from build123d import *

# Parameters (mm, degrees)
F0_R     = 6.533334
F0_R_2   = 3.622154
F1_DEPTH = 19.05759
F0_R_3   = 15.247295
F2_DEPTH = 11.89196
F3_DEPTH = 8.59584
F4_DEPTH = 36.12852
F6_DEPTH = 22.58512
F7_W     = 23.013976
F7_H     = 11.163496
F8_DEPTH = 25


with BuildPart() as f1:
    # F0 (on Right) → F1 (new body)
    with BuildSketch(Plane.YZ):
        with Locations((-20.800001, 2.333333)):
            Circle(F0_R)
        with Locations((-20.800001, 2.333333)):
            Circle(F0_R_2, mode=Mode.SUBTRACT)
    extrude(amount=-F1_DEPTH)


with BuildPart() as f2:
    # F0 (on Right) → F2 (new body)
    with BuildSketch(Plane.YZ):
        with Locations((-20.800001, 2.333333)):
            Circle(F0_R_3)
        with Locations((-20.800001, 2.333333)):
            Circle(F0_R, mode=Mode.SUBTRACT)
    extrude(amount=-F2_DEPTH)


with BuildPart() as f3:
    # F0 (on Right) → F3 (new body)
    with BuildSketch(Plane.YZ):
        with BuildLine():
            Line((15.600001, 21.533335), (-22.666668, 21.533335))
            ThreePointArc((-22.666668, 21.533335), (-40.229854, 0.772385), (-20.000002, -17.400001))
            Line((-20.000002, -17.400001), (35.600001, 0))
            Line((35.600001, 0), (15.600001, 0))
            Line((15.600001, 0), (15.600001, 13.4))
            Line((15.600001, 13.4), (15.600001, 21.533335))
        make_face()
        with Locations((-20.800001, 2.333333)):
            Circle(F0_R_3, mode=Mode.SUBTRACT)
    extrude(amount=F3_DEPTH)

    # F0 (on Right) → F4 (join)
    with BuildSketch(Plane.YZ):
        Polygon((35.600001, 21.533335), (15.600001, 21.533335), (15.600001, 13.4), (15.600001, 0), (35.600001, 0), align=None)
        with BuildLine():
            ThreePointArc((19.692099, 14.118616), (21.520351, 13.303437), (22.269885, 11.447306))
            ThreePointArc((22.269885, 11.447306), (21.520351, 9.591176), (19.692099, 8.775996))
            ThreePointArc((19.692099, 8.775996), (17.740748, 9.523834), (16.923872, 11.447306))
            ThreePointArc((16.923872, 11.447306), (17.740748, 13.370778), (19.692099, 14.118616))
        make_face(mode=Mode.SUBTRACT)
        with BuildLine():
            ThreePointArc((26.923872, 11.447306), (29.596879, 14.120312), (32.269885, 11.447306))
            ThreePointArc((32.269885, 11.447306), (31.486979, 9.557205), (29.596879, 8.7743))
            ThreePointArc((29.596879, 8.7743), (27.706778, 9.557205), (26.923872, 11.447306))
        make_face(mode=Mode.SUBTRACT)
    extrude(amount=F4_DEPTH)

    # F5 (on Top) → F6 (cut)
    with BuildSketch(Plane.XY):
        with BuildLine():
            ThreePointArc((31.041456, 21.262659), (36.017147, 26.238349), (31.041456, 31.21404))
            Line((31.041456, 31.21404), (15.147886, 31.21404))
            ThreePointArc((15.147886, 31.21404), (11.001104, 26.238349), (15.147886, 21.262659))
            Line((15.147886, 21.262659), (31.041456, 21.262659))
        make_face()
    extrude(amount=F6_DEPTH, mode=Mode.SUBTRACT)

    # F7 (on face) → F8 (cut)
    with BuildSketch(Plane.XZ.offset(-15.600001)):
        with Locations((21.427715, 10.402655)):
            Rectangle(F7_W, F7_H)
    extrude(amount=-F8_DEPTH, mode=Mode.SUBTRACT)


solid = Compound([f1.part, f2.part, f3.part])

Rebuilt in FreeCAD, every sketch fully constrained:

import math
import FreeCAD as App
import Part
import Sketcher
Q = App.Units.Quantity

doc = App.newDocument("Part")
params = doc.addObject("Spreadsheet::Sheet", "Params")
for row, (alias, value) in enumerate([
    ("pad1_length", "19.05759 mm"),
    ("pad2_length", "11.89196 mm"),
    ("sketch3_width", "20 mm"),
    ("pad3_length", "8.59584 mm"),
    ("sketch4_width", "20 mm"),
    ("pad4_length", "36.12852 mm"),
    ("pocket1_length", "22.58512 mm"),
    ("pocket2_length", "25 mm"),
], start=1):
    params.set(f"A{row}", alias)
    params.set(f"B{row}", "=" + value)
    params.setAlias(f"B{row}", alias)

body = doc.addObject("PartDesign::Body", "Body")

# Sketch on YZ plane
sketch1 = doc.addObject("Sketcher::SketchObject", "Sketch")
body.addObject(sketch1)
sketch1.AttachmentSupport = (doc.YZ_Plane, [""])
sketch1.MapMode = "FlatFace"
sketch1.addGeometry(Part.Circle(App.Vector(-20.800001, 2.333333, 0), App.Vector(0, 0, 1), 6.533334), False)
sketch1.addGeometry(Part.Circle(App.Vector(-20.800001, 2.333333, 0), App.Vector(0, 0, 1), 3.622154), False)
sketch1.addConstraint(Sketcher.Constraint("Coincident", 1, 3, 0, 3))
sketch1.addConstraint(Sketcher.Constraint("DistanceX", 0, 3, -1, 1, Q("20.800001 mm")))
sketch1.addConstraint(Sketcher.Constraint("Diameter", 1, Q("7.244308 mm")))
sketch1.addConstraint(Sketcher.Constraint("Diameter", 0, Q("13.066668 mm")))
sketch1.addConstraint(Sketcher.Constraint("DistanceY", -1, 1, 0, 3, Q("2.333333 mm")))
pad1 = doc.addObject("PartDesign::Pad", "Pad")
body.addObject(pad1)
pad1.Profile = sketch1
pad1.setExpression("Length", "Params.pad1_length")
pad1.Reversed = True
body2 = doc.addObject("PartDesign::Body", "Body001")

# Sketch on YZ plane
sketch2 = doc.addObject("Sketcher::SketchObject", "Sketch001")
body2.addObject(sketch2)
sketch2.AttachmentSupport = (doc.getObject("YZ_Plane001"), [""])
sketch2.MapMode = "FlatFace"
sketch2.addGeometry(Part.Circle(App.Vector(-20.800001, 2.333333, 0), App.Vector(0, 0, 1), 15.247295), False)
sketch2.addGeometry(Part.Circle(App.Vector(-20.800001, 2.333333, 0), App.Vector(0, 0, 1), 6.533334), False)
sketch2.addConstraint(Sketcher.Constraint("Coincident", 1, 3, 0, 3))
sketch2.addConstraint(Sketcher.Constraint("DistanceX", 0, 3, -1, 1, Q("20.800001 mm")))
sketch2.addConstraint(Sketcher.Constraint("Diameter", 0, Q("30.49459 mm")))
sketch2.addConstraint(Sketcher.Constraint("Diameter", 1, Q("13.066668 mm")))
sketch2.addConstraint(Sketcher.Constraint("DistanceY", -1, 1, 0, 3, Q("2.333333 mm")))
pad2 = doc.addObject("PartDesign::Pad", "Pad001")
body2.addObject(pad2)
pad2.Profile = sketch2
pad2.setExpression("Length", "Params.pad2_length")
pad2.Reversed = True
body3 = doc.addObject("PartDesign::Body", "Body002")

# Sketch on YZ plane
sketch3 = doc.addObject("Sketcher::SketchObject", "Sketch002")
body3.addObject(sketch3)
sketch3.AttachmentSupport = (doc.getObject("YZ_Plane002"), [""])
sketch3.MapMode = "FlatFace"
sketch3.addGeometry(Part.LineSegment(App.Vector(15.600001, 21.533335, 0), App.Vector(-22.666668, 21.533335, 0)), False)
sketch3.addGeometry(Part.ArcOfCircle(Part.Circle(App.Vector(-20.754585, 2.106307, 0), App.Vector(0, 0, 1), 19.520898), math.radians(95.621168), math.radians(272.215327)), False)
sketch3.addGeometry(Part.LineSegment(App.Vector(-20.000002, -17.400001, 0), App.Vector(35.600001, 0, 0)), False)
sketch3.addGeometry(Part.LineSegment(App.Vector(35.600001, 0, 0), App.Vector(15.600001, 0, 0)), False)
sketch3.addGeometry(Part.LineSegment(App.Vector(15.600001, 0, 0), App.Vector(15.600001, 21.533335, 0)), False)
sketch3.addGeometry(Part.Circle(App.Vector(-20.800001, 2.333333, 0), App.Vector(0, 0, 1), 15.247295), False)
sketch3.addConstraint(Sketcher.Constraint("Coincident", 0, 2, 1, 1))
sketch3.addConstraint(Sketcher.Constraint("Coincident", 1, 2, 2, 1))
sketch3.addConstraint(Sketcher.Constraint("Coincident", 2, 2, 3, 1))
sketch3.addConstraint(Sketcher.Constraint("Coincident", 3, 2, 4, 1))
sketch3.addConstraint(Sketcher.Constraint("Coincident", 4, 2, 0, 1))
sketch3.addConstraint(Sketcher.Constraint("Horizontal", 0))
sketch3.addConstraint(Sketcher.Constraint("Horizontal", 3))
sketch3.addConstraint(Sketcher.Constraint("Vertical", 4))
sketch3.addConstraint(Sketcher.Constraint("PointOnObject", 2, 2, -1))
sketch3.addConstraint(Sketcher.Constraint("DistanceX", 3, 2, 3, 1, Q("20 mm")))
sketch3.addConstraint(Sketcher.Constraint("DistanceX", 5, 3, -1, 1, Q("20.800001 mm")))
sketch3.addConstraint(Sketcher.Constraint("DistanceY", 1, 2, -1, 1, Q("17.400001 mm")))
sketch3.addConstraint(Sketcher.Constraint("DistanceX", -1, 1, 2, 2, Q("35.600001 mm")))
sketch3.addConstraint(Sketcher.Constraint("Radius", 1, Q("19.520898 mm")))
sketch3.addConstraint(Sketcher.Constraint("DistanceX", 5, 3, 1, 2, Q("0.799999 mm")))
sketch3.addConstraint(Sketcher.Constraint("Diameter", 5, Q("30.49459 mm")))
sketch3.addConstraint(Sketcher.Constraint("DistanceX", 0, 2, 0, 1, Q("38.266669 mm")))
sketch3.addConstraint(Sketcher.Constraint("DistanceY", 4, 1, 4, 2, Q("21.533335 mm")))
sketch3.addConstraint(Sketcher.Constraint("DistanceY", -1, 1, 5, 3, Q("2.333333 mm")))
sketch3.setExpression("Constraints[9]", "Params.sketch3_width")
pad3 = doc.addObject("PartDesign::Pad", "Pad002")
body3.addObject(pad3)
pad3.Profile = sketch3
pad3.setExpression("Length", "Params.pad3_length")

# Sketch on YZ plane
sketch4 = doc.addObject("Sketcher::SketchObject", "Sketch003")
body3.addObject(sketch4)
sketch4.AttachmentSupport = (doc.getObject("YZ_Plane002"), [""])
sketch4.MapMode = "FlatFace"
sketch4.addGeometry(Part.LineSegment(App.Vector(35.600001, 21.533335, 0), App.Vector(15.600001, 21.533335, 0)), False)
sketch4.addGeometry(Part.LineSegment(App.Vector(15.600001, 21.533335, 0), App.Vector(15.600001, 0, 0)), False)
sketch4.addGeometry(Part.LineSegment(App.Vector(15.600001, 0, 0), App.Vector(35.600001, 0, 0)), False)
sketch4.addGeometry(Part.LineSegment(App.Vector(35.600001, 0, 0), App.Vector(35.600001, 21.533335, 0)), False)
sketch4.addGeometry(Part.ArcOfCircle(Part.Circle(App.Vector(19.596878, 11.447306, 0), App.Vector(0, 0, 1), 2.673006), math.radians(87.958511), math.radians(180.000011)), False)
sketch4.addGeometry(Part.ArcOfCircle(Part.Circle(App.Vector(19.596881, 11.447308, 0), App.Vector(0, 0, 1), 2.673004), math.radians(-0.000049), math.radians(87.958568)), False)
sketch4.addGeometry(Part.ArcOfCircle(Part.Circle(App.Vector(19.596879, 11.447305, 0), App.Vector(0, 0, 1), 2.673006), math.radians(-87.958531), math.radians(0.000012)), False)
sketch4.addGeometry(Part.ArcOfCircle(Part.Circle(App.Vector(19.596878, 11.447306, 0), App.Vector(0, 0, 1), 2.673006), math.radians(179.999989), math.radians(272.041489)), False)
sketch4.addGeometry(Part.ArcOfCircle(Part.Circle(App.Vector(29.596879, 11.447307, 0), App.Vector(0, 0, 1), 2.673007), math.radians(-179.999988), math.radians(-89.999991)), False)
sketch4.addGeometry(Part.ArcOfCircle(Part.Circle(App.Vector(29.596878, 11.447306, 0), App.Vector(0, 0, 1), 2.673007), math.radians(0.000011), math.radians(179.999989)), False)
sketch4.addGeometry(Part.ArcOfCircle(Part.Circle(App.Vector(29.596878, 11.447307, 0), App.Vector(0, 0, 1), 2.673007), math.radians(-89.999988), math.radians(-0.000012)), False)
sketch4.addConstraint(Sketcher.Constraint("Coincident", 0, 2, 1, 1))
sketch4.addConstraint(Sketcher.Constraint("Coincident", 1, 2, 2, 1))
sketch4.addConstraint(Sketcher.Constraint("Coincident", 2, 2, 3, 1))
sketch4.addConstraint(Sketcher.Constraint("Coincident", 3, 2, 0, 1))
sketch4.addConstraint(Sketcher.Constraint("Tangent", 4, 1, 5, 2))
sketch4.addConstraint(Sketcher.Constraint("Tangent", 5, 1, 6, 2))
sketch4.addConstraint(Sketcher.Constraint("Tangent", 6, 1, 7, 2))
sketch4.addConstraint(Sketcher.Constraint("Tangent", 7, 1, 4, 2))
sketch4.addConstraint(Sketcher.Constraint("Tangent", 8, 1, 9, 2))
sketch4.addConstraint(Sketcher.Constraint("Tangent", 9, 1, 10, 2))
sketch4.addConstraint(Sketcher.Constraint("Tangent", 10, 1, 8, 2))
sketch4.addConstraint(Sketcher.Constraint("Horizontal", 0))
sketch4.addConstraint(Sketcher.Constraint("Vertical", 1))
sketch4.addConstraint(Sketcher.Constraint("Horizontal", 2))
sketch4.addConstraint(Sketcher.Constraint("Vertical", 3))
sketch4.addConstraint(Sketcher.Constraint("Equal", 4, 5))
sketch4.addConstraint(Sketcher.Constraint("Equal", 7, 8))
sketch4.addConstraint(Sketcher.Constraint("PointOnObject", 1, 2, -1))
sketch4.addConstraint(Sketcher.Constraint("Horizontal", 7, 3, 8, 3))
sketch4.addConstraint(Sketcher.Constraint("Horizontal", 10, 3, 5, 1))
sketch4.addConstraint(Sketcher.Constraint("Horizontal", 5, 1, 7, 1))
sketch4.addConstraint(Sketcher.Constraint("Horizontal", 7, 1, 8, 1))
sketch4.addConstraint(Sketcher.Constraint("Horizontal", 8, 1, 9, 1))
sketch4.addConstraint(Sketcher.Constraint("Vertical", 4, 1, 6, 1))
sketch4.addConstraint(Sketcher.Constraint("Vertical", 9, 3, 10, 1))
sketch4.addConstraint(Sketcher.Constraint("DistanceX", 0, 2, 0, 1, Q("20 mm")))
sketch4.addConstraint(Sketcher.Constraint("DistanceX", 6, 3, 8, 3, Q("10 mm")))
sketch4.addConstraint(Sketcher.Constraint("DistanceX", -1, 1, 0, 2, Q("15.600001 mm")))
sketch4.addConstraint(Sketcher.Constraint("Radius", 4, Q("2.673006 mm")))
sketch4.addConstraint(Sketcher.Constraint("DistanceX", -1, 1, 4, 1, Q("19.692099 mm")))
sketch4.addConstraint(Sketcher.Constraint("DistanceY", -1, 1, 10, 1, Q("8.7743 mm")))
sketch4.addConstraint(Sketcher.Constraint("DistanceY", 1, 2, 1, 1, Q("21.533335 mm")))
sketch4.addConstraint(Sketcher.Constraint("DistanceX", -1, 1, 4, 3, Q("19.596878 mm")))
sketch4.setExpression("Constraints[25]", "Params.sketch4_width")
pad4 = doc.addObject("PartDesign::Pad", "Pad003")
body3.addObject(pad4)
pad4.Profile = sketch4
pad4.setExpression("Length", "Params.pad4_length")

# Sketch on XY plane
sketch5 = doc.addObject("Sketcher::SketchObject", "Sketch004")
body3.addObject(sketch5)
sketch5.AttachmentSupport = (doc.getObject("XY_Plane002"), [""])
sketch5.MapMode = "FlatFace"
sketch5.addGeometry(Part.ArcOfCircle(Part.Circle(App.Vector(31.041456, 26.23835, 0), App.Vector(0, 0, 1), 4.97569), math.radians(-90.000006), math.radians(90.000006)), False)
sketch5.addGeometry(Part.LineSegment(App.Vector(31.041456, 31.21404, 0), App.Vector(15.147886, 31.21404, 0)), False)
sketch5.addGeometry(Part.ArcOfCircle(Part.Circle(App.Vector(16.059641, 26.23835, 0), App.Vector(0, 0, 1), 5.058537), math.radians(100.383785), math.radians(259.616215)), False)
sketch5.addGeometry(Part.LineSegment(App.Vector(15.147886, 21.262659, 0), App.Vector(31.041456, 21.262659, 0)), False)
sketch5.addConstraint(Sketcher.Constraint("Tangent", 0, 2, 1, 1))
sketch5.addConstraint(Sketcher.Constraint("Coincident", 1, 2, 2, 1))
sketch5.addConstraint(Sketcher.Constraint("Coincident", 2, 2, 3, 1))
sketch5.addConstraint(Sketcher.Constraint("Tangent", 3, 2, 0, 1))
sketch5.addConstraint(Sketcher.Constraint("Horizontal", 1))
sketch5.addConstraint(Sketcher.Constraint("Horizontal", 3))
sketch5.addConstraint(Sketcher.Constraint("Horizontal", 0, 3, 2, 3))
sketch5.addConstraint(Sketcher.Constraint("Radius", 0, Q("4.97569 mm")))
sketch5.addConstraint(Sketcher.Constraint("Radius", 2, Q("5.058537 mm")))
sketch5.addConstraint(Sketcher.Constraint("DistanceX", 1, 2, 1, 1, Q("15.89357 mm")))
sketch5.addConstraint(Sketcher.Constraint("DistanceY", -1, 1, 0, 3, Q("26.23835 mm")))
sketch5.addConstraint(Sketcher.Constraint("DistanceX", -1, 1, 2, 3, Q("16.059641 mm")))
pocket1 = doc.addObject("PartDesign::Pocket", "Pocket")
body3.addObject(pocket1)
pocket1.Profile = sketch5
pocket1.setExpression("Length", "Params.pocket1_length")
pocket1.Reversed = True

# Sketch on XZ plane
sketch6 = doc.addObject("Sketcher::SketchObject", "Sketch005")
body3.addObject(sketch6)
sketch6.AttachmentSupport = (doc.getObject("XZ_Plane002"), [""])
sketch6.MapMode = "FlatFace"
sketch6.AttachmentOffset = App.Placement(App.Vector(0, 0, -15.600001), App.Rotation())
sketch6.addGeometry(Part.LineSegment(App.Vector(9.920727, 15.984403, 0), App.Vector(9.920727, 4.820907, 0)), False)
sketch6.addGeometry(Part.LineSegment(App.Vector(9.920727, 4.820907, 0), App.Vector(32.934703, 4.820907, 0)), False)
sketch6.addGeometry(Part.LineSegment(App.Vector(32.934703, 4.820907, 0), App.Vector(32.934703, 15.984403, 0)), False)
sketch6.addGeometry(Part.LineSegment(App.Vector(32.934703, 15.984403, 0), App.Vector(9.920727, 15.984403, 0)), False)
sketch6.addConstraint(Sketcher.Constraint("Coincident", 0, 2, 1, 1))
sketch6.addConstraint(Sketcher.Constraint("Coincident", 1, 2, 2, 1))
sketch6.addConstraint(Sketcher.Constraint("Coincident", 2, 2, 3, 1))
sketch6.addConstraint(Sketcher.Constraint("Coincident", 3, 2, 0, 1))
sketch6.addConstraint(Sketcher.Constraint("Vertical", 0))
sketch6.addConstraint(Sketcher.Constraint("Horizontal", 1))
sketch6.addConstraint(Sketcher.Constraint("Vertical", 2))
sketch6.addConstraint(Sketcher.Constraint("Horizontal", 3))
sketch6.addConstraint(Sketcher.Constraint("DistanceX", 1, 1, 1, 2, Q("23.013976 mm")))
sketch6.addConstraint(Sketcher.Constraint("DistanceY", 0, 2, 0, 1, Q("11.163496 mm")))
sketch6.addConstraint(Sketcher.Constraint("DistanceX", -1, 1, 0, 2, Q("9.920727 mm")))
sketch6.addConstraint(Sketcher.Constraint("DistanceY", -1, 1, 0, 2, Q("4.820907 mm")))
pocket2 = doc.addObject("PartDesign::Pocket", "Pocket001")
body3.addObject(pocket2)
pocket2.Profile = sketch6
pocket2.setExpression("Length", "Params.pocket2_length")

doc.recompute()
